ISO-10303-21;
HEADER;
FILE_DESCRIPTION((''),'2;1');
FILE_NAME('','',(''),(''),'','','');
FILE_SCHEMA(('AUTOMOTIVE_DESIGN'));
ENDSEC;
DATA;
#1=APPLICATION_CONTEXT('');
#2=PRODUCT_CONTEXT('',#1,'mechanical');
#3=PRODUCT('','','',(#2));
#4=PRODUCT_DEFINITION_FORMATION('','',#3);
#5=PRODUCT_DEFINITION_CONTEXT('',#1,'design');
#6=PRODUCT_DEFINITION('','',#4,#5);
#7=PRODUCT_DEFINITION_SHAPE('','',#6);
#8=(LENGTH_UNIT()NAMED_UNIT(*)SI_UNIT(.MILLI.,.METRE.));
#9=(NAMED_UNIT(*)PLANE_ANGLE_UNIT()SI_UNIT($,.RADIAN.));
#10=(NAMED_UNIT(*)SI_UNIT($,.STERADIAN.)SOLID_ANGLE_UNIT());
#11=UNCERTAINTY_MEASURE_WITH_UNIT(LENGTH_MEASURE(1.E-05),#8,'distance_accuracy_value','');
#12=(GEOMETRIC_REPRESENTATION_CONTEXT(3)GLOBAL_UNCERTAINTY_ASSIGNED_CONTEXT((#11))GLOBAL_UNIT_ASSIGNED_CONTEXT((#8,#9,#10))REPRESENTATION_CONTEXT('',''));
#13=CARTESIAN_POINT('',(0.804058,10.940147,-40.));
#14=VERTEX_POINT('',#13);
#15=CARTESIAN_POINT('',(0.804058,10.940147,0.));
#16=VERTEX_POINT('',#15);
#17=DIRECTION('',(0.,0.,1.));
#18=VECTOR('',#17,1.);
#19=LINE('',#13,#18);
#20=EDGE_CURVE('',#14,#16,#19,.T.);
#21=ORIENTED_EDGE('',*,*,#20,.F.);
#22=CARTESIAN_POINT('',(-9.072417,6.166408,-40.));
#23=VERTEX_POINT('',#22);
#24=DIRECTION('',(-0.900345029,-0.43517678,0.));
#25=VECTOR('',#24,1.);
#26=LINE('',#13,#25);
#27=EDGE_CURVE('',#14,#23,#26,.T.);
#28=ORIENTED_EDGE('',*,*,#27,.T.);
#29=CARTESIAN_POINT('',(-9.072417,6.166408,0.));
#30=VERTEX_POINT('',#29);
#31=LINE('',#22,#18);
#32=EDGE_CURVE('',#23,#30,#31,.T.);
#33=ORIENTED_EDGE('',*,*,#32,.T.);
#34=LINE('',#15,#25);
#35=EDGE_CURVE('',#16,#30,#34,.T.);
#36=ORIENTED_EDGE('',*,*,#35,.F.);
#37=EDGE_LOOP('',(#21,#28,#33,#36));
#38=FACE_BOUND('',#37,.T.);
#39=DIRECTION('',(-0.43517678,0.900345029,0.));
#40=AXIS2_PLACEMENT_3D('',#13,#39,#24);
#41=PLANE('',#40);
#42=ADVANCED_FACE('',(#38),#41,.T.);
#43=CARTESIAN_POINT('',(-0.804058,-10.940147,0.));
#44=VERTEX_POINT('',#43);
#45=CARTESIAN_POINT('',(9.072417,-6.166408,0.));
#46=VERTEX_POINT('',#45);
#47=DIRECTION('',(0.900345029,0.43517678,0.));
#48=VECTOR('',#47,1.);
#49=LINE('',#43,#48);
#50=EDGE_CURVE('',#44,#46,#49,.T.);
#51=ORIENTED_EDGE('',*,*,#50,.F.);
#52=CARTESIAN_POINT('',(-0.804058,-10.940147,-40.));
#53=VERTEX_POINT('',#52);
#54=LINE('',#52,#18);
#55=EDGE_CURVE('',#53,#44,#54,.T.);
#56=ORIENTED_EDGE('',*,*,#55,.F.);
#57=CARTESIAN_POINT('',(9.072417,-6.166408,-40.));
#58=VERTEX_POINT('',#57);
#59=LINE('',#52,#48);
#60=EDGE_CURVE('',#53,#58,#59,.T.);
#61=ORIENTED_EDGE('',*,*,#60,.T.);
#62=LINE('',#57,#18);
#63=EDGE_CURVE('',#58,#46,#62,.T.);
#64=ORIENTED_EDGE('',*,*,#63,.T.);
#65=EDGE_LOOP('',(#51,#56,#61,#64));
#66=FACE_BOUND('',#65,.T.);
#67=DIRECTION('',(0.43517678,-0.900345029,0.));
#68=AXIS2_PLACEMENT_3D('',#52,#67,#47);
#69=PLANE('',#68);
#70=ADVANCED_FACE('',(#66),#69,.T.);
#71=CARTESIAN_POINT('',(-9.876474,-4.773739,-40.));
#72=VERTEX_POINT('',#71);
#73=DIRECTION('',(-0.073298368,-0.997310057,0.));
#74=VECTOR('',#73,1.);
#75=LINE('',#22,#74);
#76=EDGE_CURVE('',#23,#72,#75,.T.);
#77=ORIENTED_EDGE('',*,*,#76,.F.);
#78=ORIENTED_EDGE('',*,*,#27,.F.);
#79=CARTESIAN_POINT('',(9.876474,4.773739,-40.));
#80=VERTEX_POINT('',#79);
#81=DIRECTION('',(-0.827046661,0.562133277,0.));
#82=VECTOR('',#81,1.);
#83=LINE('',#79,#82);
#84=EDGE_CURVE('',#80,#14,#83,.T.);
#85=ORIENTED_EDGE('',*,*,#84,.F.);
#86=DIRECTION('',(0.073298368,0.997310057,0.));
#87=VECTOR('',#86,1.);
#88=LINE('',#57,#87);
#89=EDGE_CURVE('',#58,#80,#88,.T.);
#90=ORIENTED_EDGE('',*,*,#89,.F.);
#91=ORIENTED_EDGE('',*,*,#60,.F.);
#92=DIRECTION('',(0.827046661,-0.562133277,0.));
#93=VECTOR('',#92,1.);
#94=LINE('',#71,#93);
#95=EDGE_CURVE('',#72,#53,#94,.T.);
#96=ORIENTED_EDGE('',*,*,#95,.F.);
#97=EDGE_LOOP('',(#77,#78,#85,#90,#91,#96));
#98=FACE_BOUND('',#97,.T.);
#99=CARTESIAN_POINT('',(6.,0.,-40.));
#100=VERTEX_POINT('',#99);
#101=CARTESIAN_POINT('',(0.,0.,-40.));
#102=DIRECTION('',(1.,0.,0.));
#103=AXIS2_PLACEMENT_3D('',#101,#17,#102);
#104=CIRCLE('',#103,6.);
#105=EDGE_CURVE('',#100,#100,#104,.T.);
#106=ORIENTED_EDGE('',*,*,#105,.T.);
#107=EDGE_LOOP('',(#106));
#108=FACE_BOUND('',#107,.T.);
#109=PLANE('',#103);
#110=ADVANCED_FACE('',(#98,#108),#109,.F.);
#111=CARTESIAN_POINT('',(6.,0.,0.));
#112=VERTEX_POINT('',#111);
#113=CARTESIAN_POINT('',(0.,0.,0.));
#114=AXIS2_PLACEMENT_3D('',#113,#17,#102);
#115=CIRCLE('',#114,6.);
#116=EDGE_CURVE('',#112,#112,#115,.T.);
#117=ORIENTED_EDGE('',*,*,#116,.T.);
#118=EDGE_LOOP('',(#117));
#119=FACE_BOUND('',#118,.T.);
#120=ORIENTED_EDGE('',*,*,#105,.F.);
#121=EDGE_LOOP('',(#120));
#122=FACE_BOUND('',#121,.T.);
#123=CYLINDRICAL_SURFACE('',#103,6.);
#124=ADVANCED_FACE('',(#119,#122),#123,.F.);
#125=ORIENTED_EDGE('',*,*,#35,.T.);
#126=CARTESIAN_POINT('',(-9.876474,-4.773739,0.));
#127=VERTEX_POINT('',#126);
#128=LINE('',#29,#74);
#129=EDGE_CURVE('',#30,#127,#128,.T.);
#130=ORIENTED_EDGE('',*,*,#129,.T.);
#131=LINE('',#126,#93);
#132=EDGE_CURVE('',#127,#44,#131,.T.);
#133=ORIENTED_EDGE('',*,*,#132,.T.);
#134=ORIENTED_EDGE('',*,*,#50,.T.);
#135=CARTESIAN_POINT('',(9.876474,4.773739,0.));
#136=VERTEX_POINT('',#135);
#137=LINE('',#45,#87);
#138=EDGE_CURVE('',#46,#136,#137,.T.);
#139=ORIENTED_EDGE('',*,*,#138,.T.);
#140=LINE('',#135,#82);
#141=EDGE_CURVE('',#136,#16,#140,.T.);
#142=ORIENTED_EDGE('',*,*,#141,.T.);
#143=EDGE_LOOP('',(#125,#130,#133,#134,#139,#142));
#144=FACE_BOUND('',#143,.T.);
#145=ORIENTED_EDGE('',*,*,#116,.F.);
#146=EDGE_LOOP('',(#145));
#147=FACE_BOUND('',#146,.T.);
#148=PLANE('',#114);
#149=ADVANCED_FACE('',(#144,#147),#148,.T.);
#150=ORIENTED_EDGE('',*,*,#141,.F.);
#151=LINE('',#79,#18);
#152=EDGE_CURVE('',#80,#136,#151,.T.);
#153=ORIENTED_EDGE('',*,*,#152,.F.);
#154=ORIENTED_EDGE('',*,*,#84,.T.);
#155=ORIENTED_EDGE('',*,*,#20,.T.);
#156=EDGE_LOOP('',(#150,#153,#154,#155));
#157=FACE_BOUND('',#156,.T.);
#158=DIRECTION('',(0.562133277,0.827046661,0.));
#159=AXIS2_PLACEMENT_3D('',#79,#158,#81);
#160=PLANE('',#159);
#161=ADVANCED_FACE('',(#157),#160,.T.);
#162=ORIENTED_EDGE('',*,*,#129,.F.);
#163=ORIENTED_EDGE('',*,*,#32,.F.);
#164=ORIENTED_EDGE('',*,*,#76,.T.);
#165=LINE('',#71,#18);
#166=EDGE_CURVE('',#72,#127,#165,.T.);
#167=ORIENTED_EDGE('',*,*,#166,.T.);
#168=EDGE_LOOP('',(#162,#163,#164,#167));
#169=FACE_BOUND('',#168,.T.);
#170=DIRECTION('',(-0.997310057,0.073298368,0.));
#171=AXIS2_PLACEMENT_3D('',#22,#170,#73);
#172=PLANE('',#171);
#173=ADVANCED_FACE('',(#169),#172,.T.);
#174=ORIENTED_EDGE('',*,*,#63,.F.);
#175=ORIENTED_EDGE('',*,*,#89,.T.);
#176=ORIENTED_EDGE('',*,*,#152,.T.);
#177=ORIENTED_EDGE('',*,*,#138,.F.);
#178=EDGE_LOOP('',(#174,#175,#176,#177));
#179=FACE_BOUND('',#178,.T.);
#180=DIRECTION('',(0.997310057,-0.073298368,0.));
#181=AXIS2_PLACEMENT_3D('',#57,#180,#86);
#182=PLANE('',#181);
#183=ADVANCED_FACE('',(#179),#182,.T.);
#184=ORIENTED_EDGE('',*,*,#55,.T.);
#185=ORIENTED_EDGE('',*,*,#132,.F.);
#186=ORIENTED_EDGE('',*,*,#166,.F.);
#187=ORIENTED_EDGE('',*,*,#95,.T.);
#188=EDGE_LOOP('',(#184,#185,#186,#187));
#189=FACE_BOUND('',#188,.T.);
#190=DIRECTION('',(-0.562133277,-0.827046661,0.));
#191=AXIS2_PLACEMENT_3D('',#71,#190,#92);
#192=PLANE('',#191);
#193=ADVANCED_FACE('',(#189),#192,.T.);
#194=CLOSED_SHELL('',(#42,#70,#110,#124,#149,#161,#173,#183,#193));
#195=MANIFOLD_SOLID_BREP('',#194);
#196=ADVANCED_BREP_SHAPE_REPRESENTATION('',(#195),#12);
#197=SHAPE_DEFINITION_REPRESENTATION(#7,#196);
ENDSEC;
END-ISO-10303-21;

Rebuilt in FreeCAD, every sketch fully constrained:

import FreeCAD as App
import Part
import Sketcher


def add_polygon(sketch, points):
    """Adds a closed chain of lines whose ends are joined by coincident constraints."""
    first, n = sketch.GeometryCount, len(points)
    for a, b in zip(points, points[1:] + points[:1]):
        sketch.addGeometry(Part.LineSegment(App.Vector(*a, 0), App.Vector(*b, 0)), False)
    for i in range(n):
        sketch.addConstraint(Sketcher.Constraint("Coincident", first + i, 2, first + (i + 1) % n, 1))

doc = App.newDocument("Part")
params = doc.addObject("Spreadsheet::Sheet", "Params")
for row, (alias, value) in enumerate([
    ("pad1_length", "40 mm"),
    ("sketch2_diameter", "12 mm"),
], start=1):
    params.set(f"A{row}", alias)
    params.set(f"B{row}", "=" + value)
    params.setAlias(f"B{row}", alias)

body = doc.addObject("PartDesign::Body", "Body")

sketch1 = body.newObject("Sketcher::SketchObject", "Sketch")
sketch1.AttachmentSupport = (doc.getObject("XY_Plane"), [""])
sketch1.MapMode = "FlatFace"
add_polygon(sketch1, [(9, -6), (10, 5), (1, 11), (-9, 6), (-10, -5), (-1, -11)])
sketch1.addConstraint([
    Sketcher.Constraint("Symmetric", 0, 2, 3, 2, -1, 1),
    Sketcher.Constraint("Symmetric", 1, 2, 4, 2, -1, 1),
    Sketcher.Constraint("Symmetric", 2, 2, 5, 2, -1, 1),
    Sketcher.Constraint("Equal", 0, 1),
    Sketcher.Constraint("Equal", 1, 2),
    Sketcher.Constraint("DistanceY", -1, 1, 0, 2, 4.773739),
    Sketcher.Constraint("DistanceY", -1, 1, 2, 2, 6.166408),
    Sketcher.Constraint("DistanceY", 0, 2, 1, 2, 6.166408),
    Sketcher.Constraint("DistanceX", 2, 2, 0, 2, 18.948891),
])
pad1 = body.newObject("PartDesign::Pad", "Pad")
pad1.Profile = sketch1
pad1.setExpression("Length", "Params.pad1_length")
pad1.Reversed = True

sketch2 = body.newObject("Sketcher::SketchObject", "Sketch001")
sketch2.AttachmentSupport = (doc.getObject("XY_Plane"), [""])
sketch2.MapMode = "FlatFace"
sketch2.addGeometry(Part.Circle(App.Vector(0, 0, 0), App.Vector(0, 0, 1), 6), False)
sketch2.addConstraint([
    Sketcher.Constraint("Coincident", 0, 3, -1, 1),
    Sketcher.Constraint("Diameter", 0, 12.0),
])
sketch2.setExpression("Constraints[1]", "Params.sketch2_diameter")
pocket1 = body.newObject("PartDesign::Pocket", "Pocket")
pocket1.Profile = sketch2
pocket1.Type = "ThroughAll"

doc.recompute()
